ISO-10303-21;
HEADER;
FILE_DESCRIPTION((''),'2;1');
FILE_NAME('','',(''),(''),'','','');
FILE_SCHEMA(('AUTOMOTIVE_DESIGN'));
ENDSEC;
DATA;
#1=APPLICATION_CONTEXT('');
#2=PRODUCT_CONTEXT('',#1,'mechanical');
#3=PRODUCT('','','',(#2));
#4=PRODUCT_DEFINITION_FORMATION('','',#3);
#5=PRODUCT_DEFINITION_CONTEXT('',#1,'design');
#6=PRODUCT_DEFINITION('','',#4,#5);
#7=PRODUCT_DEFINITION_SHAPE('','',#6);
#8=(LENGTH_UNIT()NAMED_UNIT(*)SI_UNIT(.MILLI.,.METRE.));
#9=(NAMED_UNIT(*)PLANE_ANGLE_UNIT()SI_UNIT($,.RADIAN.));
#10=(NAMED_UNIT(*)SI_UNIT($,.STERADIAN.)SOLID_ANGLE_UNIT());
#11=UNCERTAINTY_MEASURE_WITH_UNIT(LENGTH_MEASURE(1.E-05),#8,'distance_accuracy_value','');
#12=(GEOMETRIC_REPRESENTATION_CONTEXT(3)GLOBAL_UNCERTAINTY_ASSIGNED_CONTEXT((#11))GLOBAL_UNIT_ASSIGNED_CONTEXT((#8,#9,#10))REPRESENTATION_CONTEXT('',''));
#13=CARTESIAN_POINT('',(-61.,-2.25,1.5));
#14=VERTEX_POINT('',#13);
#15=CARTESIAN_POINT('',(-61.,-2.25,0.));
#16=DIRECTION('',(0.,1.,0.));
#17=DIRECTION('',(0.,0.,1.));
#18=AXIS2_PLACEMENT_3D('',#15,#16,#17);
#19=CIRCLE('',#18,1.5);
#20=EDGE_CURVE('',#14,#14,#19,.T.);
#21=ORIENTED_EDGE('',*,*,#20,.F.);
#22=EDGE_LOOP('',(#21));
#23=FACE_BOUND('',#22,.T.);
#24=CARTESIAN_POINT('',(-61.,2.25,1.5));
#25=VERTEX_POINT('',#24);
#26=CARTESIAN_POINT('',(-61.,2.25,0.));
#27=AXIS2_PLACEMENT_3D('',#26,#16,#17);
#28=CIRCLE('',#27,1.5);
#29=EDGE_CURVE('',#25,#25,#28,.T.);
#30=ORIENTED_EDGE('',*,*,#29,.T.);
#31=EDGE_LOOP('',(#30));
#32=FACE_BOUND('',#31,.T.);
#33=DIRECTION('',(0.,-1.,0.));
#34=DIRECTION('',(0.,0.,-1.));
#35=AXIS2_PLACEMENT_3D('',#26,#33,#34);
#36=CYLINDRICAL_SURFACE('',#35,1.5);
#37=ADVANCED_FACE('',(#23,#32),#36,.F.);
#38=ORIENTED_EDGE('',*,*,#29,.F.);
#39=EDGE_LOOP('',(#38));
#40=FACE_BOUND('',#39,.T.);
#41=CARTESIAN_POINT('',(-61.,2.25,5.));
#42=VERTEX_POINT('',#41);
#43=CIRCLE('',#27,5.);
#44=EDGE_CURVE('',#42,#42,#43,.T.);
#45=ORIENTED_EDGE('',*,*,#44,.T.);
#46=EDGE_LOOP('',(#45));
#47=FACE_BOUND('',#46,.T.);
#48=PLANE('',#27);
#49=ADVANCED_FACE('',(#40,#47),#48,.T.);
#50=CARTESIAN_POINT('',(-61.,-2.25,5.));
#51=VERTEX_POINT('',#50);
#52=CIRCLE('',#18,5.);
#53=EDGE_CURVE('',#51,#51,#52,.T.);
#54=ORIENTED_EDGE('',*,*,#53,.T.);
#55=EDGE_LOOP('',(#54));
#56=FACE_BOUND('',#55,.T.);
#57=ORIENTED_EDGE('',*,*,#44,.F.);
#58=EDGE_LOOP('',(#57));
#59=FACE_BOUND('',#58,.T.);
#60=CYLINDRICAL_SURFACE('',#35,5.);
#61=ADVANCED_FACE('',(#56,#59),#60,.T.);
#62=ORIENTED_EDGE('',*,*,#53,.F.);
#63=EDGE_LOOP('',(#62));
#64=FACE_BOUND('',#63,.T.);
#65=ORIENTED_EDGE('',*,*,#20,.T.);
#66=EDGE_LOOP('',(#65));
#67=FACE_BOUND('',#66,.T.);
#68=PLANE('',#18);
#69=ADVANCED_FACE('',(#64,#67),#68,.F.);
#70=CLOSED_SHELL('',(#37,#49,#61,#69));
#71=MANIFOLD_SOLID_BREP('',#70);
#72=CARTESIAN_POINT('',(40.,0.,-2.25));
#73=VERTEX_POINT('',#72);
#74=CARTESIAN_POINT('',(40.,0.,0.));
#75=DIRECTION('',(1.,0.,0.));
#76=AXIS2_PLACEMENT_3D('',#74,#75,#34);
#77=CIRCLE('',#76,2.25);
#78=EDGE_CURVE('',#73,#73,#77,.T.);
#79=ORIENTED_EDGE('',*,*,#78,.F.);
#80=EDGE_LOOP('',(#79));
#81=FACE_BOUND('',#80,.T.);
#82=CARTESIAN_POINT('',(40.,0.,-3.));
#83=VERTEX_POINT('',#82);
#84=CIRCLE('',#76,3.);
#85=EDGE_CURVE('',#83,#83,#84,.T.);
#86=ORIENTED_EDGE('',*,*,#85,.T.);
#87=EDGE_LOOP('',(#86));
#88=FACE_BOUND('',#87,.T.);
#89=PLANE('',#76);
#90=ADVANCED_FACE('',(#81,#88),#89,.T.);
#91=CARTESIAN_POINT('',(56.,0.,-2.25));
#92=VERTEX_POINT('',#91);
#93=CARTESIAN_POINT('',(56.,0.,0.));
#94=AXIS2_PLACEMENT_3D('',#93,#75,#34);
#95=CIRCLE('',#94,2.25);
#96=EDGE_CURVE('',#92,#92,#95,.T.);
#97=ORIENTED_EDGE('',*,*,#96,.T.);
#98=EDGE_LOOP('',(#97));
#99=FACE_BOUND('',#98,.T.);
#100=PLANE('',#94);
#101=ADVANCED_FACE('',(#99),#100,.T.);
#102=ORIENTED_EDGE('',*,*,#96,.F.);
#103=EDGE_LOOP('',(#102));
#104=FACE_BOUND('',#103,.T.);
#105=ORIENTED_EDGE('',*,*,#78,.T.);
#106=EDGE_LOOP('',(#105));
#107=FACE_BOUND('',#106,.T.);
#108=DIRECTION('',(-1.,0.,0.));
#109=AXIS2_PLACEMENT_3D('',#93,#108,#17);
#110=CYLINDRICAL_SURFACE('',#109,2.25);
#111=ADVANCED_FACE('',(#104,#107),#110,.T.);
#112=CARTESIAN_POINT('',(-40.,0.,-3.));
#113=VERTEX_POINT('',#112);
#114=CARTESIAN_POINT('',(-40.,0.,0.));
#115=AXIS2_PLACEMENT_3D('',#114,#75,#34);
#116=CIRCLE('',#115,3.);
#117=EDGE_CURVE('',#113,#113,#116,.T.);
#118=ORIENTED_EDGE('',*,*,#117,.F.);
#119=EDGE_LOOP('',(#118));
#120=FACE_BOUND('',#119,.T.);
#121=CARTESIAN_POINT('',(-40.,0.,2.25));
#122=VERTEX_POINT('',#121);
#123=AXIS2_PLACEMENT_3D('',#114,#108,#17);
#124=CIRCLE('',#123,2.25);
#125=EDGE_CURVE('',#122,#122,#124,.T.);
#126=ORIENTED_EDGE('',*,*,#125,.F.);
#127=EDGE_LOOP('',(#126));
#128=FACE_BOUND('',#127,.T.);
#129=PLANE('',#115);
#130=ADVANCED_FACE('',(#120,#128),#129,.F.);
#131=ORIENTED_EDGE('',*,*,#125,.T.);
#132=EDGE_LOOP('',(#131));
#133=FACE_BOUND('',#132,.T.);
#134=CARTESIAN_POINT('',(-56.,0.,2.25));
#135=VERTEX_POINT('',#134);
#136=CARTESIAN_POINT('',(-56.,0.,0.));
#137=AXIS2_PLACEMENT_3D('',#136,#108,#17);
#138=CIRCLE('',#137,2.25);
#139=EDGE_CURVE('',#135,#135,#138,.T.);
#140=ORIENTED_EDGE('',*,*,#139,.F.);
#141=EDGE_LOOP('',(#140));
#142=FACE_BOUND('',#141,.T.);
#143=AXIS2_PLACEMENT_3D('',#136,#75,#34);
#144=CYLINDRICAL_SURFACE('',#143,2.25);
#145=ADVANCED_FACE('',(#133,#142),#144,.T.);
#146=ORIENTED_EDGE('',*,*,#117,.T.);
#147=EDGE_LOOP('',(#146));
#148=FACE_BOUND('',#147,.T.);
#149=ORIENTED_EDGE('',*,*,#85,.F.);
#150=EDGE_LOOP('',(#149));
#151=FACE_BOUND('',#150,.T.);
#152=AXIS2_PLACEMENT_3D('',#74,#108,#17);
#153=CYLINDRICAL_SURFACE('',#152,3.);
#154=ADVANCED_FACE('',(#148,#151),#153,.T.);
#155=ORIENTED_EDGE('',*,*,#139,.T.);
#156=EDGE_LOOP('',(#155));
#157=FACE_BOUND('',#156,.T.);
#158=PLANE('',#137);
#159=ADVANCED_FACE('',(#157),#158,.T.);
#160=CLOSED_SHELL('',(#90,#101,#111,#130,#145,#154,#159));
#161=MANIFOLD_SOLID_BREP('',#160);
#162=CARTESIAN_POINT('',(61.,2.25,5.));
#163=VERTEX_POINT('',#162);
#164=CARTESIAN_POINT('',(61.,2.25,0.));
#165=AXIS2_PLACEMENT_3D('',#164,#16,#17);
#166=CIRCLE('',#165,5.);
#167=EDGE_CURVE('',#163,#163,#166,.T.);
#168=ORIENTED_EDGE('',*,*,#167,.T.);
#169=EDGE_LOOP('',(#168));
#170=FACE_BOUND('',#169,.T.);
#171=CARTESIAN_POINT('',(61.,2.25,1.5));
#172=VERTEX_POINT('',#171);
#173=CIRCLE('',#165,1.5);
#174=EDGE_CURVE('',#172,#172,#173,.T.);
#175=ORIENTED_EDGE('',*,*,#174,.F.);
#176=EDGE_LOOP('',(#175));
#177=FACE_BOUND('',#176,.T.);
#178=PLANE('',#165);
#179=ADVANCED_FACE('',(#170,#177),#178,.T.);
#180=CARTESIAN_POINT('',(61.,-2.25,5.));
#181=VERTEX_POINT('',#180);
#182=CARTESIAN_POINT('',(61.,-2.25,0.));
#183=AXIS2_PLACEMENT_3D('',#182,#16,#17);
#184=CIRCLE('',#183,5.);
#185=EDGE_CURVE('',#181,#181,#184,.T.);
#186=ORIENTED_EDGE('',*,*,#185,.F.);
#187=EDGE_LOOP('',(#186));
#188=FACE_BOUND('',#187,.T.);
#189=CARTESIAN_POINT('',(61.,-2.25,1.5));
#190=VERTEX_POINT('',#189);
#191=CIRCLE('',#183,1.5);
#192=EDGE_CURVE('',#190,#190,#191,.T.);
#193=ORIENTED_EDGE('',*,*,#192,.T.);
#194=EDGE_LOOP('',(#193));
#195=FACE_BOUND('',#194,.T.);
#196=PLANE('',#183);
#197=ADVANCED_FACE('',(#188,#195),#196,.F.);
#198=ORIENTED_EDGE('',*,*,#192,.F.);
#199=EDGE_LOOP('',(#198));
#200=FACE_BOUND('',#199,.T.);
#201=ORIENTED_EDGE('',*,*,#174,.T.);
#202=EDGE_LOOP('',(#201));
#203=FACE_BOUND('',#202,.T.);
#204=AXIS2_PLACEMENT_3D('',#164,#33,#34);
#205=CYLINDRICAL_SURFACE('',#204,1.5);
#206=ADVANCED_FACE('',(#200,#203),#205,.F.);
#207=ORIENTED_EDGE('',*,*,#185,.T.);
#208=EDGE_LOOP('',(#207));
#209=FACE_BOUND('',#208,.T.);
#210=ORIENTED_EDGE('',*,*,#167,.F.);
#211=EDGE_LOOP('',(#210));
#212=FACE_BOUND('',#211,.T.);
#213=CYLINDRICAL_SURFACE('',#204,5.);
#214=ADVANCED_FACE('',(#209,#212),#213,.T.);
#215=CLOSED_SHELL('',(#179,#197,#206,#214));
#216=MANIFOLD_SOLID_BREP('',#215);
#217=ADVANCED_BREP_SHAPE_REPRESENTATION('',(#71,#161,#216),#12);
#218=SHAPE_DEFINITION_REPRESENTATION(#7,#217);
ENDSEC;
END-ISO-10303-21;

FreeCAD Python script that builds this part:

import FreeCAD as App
import Part
import Sketcher
from FreeCAD import Vector
Q = App.Units.Quantity

doc = App.newDocument("Part")
body = doc.addObject("PartDesign::Body", "Body")

# Sketch on YZ plane
sketch1 = body.newObject("Sketcher::SketchObject", "Sketch")
sketch1.AttachmentSupport = (doc.getObject("YZ_Plane"), [""])
sketch1.MapMode = "FlatFace"
sketch1.addGeometry(Part.Circle(Vector(0, 0, 0), Vector(0, 0, 1), 3), False)
sketch1.addConstraint([
    Sketcher.Constraint("Coincident", 0, 3, -1, 1),
    Sketcher.Constraint("Diameter", 0, Q("6 mm")),
])
pad1 = body.newObject("PartDesign::Pad", "Pad")
pad1.Profile = sketch1
pad1.Length = 80
pad1.Midplane = True

# Sketch on YZ plane
sketch2 = body.newObject("Sketcher::SketchObject", "Sketch001")
sketch2.AttachmentSupport = (doc.getObject("YZ_Plane"), [""])
sketch2.MapMode = "FlatFace"
sketch2.AttachmentOffset = App.Placement(Vector(0, 0, 40), App.Rotation())
sketch2.addGeometry(Part.Circle(Vector(0, 0, 0), Vector(0, 0, 1), 2.2), False)
sketch2.addConstraint([
    Sketcher.Constraint("Coincident", 0, 3, -1, 1),
    Sketcher.Constraint("Diameter", 0, Q("4.5 mm")),
])
pad2 = body.newObject("PartDesign::Pad", "Pad001")
pad2.Profile = sketch2
pad2.Length = 16

# Sketch on YZ plane
sketch3 = body.newObject("Sketcher::SketchObject", "Sketch002")
sketch3.AttachmentSupport = (doc.getObject("YZ_Plane"), [""])
sketch3.MapMode = "FlatFace"
sketch3.AttachmentOffset = App.Placement(Vector(0, 0, -56), App.Rotation())
sketch3.addGeometry(Part.Circle(Vector(0, 0, 0), Vector(0, 0, 1), 2.2), False)
sketch3.addConstraint([
    Sketcher.Constraint("Coincident", 0, 3, -1, 1),
    Sketcher.Constraint("Diameter", 0, Q("4.5 mm")),
])
pad3 = body.newObject("PartDesign::Pad", "Pad002")
pad3.Profile = sketch3
pad3.Length = 16
body2 = doc.addObject("PartDesign::Body", "Body001")

# Sketch on XZ plane
sketch4 = body2.newObject("Sketcher::SketchObject", "Sketch003")
sketch4.AttachmentSupport = (doc.getObject("XZ_Plane001"), [""])
sketch4.MapMode = "FlatFace"
sketch4.addGeometry([
    Part.Circle(Vector(61, 0, 0), Vector(0, 0, 1), 5),
    Part.Circle(Vector(61, 0, 0), Vector(0, 0, 1), 1.5),
], False)
sketch4.addConstraint([
    Sketcher.Constraint("Coincident", 1, 3, 0, 3),
    Sketcher.Constraint("PointOnObject", 0, 3, -1),
    Sketcher.Constraint("Diameter", 0, Q("10 mm")),
    Sketcher.Constraint("Diameter", 1, Q("3 mm")),
    Sketcher.Constraint("DistanceX", -1, 1, 0, 3, Q("61 mm")),
])
pad4 = body2.newObject("PartDesign::Pad", "Pad003")
pad4.Profile = sketch4
pad4.Length = 4.5
pad4.Midplane = True
body3 = doc.addObject("PartDesign::Body", "Body002")

# Sketch on XZ plane
sketch5 = body3.newObject("Sketcher::SketchObject", "Sketch004")
sketch5.AttachmentSupport = (doc.getObject("XZ_Plane002"), [""])
sketch5.MapMode = "FlatFace"
sketch5.addGeometry([
    Part.Circle(Vector(-61, 0, 0), Vector(0, 0, 1), 5),
    Part.Circle(Vector(-61, 0, 0), Vector(0, 0, 1), 1.5),
], False)
sketch5.addConstraint([
    Sketcher.Constraint("Coincident", 1, 3, 0, 3),
    Sketcher.Constraint("PointOnObject", 0, 3, -1),
    Sketcher.Constraint("Diameter", 0, Q("10 mm")),
    Sketcher.Constraint("Diameter", 1, Q("3 mm")),
    Sketcher.Constraint("DistanceX", 0, 3, -1, 1, Q("61 mm")),
])
pad5 = body3.newObject("PartDesign::Pad", "Pad004")
pad5.Profile = sketch5
pad5.Length = 4.5
pad5.Midplane = True

doc.recompute()
